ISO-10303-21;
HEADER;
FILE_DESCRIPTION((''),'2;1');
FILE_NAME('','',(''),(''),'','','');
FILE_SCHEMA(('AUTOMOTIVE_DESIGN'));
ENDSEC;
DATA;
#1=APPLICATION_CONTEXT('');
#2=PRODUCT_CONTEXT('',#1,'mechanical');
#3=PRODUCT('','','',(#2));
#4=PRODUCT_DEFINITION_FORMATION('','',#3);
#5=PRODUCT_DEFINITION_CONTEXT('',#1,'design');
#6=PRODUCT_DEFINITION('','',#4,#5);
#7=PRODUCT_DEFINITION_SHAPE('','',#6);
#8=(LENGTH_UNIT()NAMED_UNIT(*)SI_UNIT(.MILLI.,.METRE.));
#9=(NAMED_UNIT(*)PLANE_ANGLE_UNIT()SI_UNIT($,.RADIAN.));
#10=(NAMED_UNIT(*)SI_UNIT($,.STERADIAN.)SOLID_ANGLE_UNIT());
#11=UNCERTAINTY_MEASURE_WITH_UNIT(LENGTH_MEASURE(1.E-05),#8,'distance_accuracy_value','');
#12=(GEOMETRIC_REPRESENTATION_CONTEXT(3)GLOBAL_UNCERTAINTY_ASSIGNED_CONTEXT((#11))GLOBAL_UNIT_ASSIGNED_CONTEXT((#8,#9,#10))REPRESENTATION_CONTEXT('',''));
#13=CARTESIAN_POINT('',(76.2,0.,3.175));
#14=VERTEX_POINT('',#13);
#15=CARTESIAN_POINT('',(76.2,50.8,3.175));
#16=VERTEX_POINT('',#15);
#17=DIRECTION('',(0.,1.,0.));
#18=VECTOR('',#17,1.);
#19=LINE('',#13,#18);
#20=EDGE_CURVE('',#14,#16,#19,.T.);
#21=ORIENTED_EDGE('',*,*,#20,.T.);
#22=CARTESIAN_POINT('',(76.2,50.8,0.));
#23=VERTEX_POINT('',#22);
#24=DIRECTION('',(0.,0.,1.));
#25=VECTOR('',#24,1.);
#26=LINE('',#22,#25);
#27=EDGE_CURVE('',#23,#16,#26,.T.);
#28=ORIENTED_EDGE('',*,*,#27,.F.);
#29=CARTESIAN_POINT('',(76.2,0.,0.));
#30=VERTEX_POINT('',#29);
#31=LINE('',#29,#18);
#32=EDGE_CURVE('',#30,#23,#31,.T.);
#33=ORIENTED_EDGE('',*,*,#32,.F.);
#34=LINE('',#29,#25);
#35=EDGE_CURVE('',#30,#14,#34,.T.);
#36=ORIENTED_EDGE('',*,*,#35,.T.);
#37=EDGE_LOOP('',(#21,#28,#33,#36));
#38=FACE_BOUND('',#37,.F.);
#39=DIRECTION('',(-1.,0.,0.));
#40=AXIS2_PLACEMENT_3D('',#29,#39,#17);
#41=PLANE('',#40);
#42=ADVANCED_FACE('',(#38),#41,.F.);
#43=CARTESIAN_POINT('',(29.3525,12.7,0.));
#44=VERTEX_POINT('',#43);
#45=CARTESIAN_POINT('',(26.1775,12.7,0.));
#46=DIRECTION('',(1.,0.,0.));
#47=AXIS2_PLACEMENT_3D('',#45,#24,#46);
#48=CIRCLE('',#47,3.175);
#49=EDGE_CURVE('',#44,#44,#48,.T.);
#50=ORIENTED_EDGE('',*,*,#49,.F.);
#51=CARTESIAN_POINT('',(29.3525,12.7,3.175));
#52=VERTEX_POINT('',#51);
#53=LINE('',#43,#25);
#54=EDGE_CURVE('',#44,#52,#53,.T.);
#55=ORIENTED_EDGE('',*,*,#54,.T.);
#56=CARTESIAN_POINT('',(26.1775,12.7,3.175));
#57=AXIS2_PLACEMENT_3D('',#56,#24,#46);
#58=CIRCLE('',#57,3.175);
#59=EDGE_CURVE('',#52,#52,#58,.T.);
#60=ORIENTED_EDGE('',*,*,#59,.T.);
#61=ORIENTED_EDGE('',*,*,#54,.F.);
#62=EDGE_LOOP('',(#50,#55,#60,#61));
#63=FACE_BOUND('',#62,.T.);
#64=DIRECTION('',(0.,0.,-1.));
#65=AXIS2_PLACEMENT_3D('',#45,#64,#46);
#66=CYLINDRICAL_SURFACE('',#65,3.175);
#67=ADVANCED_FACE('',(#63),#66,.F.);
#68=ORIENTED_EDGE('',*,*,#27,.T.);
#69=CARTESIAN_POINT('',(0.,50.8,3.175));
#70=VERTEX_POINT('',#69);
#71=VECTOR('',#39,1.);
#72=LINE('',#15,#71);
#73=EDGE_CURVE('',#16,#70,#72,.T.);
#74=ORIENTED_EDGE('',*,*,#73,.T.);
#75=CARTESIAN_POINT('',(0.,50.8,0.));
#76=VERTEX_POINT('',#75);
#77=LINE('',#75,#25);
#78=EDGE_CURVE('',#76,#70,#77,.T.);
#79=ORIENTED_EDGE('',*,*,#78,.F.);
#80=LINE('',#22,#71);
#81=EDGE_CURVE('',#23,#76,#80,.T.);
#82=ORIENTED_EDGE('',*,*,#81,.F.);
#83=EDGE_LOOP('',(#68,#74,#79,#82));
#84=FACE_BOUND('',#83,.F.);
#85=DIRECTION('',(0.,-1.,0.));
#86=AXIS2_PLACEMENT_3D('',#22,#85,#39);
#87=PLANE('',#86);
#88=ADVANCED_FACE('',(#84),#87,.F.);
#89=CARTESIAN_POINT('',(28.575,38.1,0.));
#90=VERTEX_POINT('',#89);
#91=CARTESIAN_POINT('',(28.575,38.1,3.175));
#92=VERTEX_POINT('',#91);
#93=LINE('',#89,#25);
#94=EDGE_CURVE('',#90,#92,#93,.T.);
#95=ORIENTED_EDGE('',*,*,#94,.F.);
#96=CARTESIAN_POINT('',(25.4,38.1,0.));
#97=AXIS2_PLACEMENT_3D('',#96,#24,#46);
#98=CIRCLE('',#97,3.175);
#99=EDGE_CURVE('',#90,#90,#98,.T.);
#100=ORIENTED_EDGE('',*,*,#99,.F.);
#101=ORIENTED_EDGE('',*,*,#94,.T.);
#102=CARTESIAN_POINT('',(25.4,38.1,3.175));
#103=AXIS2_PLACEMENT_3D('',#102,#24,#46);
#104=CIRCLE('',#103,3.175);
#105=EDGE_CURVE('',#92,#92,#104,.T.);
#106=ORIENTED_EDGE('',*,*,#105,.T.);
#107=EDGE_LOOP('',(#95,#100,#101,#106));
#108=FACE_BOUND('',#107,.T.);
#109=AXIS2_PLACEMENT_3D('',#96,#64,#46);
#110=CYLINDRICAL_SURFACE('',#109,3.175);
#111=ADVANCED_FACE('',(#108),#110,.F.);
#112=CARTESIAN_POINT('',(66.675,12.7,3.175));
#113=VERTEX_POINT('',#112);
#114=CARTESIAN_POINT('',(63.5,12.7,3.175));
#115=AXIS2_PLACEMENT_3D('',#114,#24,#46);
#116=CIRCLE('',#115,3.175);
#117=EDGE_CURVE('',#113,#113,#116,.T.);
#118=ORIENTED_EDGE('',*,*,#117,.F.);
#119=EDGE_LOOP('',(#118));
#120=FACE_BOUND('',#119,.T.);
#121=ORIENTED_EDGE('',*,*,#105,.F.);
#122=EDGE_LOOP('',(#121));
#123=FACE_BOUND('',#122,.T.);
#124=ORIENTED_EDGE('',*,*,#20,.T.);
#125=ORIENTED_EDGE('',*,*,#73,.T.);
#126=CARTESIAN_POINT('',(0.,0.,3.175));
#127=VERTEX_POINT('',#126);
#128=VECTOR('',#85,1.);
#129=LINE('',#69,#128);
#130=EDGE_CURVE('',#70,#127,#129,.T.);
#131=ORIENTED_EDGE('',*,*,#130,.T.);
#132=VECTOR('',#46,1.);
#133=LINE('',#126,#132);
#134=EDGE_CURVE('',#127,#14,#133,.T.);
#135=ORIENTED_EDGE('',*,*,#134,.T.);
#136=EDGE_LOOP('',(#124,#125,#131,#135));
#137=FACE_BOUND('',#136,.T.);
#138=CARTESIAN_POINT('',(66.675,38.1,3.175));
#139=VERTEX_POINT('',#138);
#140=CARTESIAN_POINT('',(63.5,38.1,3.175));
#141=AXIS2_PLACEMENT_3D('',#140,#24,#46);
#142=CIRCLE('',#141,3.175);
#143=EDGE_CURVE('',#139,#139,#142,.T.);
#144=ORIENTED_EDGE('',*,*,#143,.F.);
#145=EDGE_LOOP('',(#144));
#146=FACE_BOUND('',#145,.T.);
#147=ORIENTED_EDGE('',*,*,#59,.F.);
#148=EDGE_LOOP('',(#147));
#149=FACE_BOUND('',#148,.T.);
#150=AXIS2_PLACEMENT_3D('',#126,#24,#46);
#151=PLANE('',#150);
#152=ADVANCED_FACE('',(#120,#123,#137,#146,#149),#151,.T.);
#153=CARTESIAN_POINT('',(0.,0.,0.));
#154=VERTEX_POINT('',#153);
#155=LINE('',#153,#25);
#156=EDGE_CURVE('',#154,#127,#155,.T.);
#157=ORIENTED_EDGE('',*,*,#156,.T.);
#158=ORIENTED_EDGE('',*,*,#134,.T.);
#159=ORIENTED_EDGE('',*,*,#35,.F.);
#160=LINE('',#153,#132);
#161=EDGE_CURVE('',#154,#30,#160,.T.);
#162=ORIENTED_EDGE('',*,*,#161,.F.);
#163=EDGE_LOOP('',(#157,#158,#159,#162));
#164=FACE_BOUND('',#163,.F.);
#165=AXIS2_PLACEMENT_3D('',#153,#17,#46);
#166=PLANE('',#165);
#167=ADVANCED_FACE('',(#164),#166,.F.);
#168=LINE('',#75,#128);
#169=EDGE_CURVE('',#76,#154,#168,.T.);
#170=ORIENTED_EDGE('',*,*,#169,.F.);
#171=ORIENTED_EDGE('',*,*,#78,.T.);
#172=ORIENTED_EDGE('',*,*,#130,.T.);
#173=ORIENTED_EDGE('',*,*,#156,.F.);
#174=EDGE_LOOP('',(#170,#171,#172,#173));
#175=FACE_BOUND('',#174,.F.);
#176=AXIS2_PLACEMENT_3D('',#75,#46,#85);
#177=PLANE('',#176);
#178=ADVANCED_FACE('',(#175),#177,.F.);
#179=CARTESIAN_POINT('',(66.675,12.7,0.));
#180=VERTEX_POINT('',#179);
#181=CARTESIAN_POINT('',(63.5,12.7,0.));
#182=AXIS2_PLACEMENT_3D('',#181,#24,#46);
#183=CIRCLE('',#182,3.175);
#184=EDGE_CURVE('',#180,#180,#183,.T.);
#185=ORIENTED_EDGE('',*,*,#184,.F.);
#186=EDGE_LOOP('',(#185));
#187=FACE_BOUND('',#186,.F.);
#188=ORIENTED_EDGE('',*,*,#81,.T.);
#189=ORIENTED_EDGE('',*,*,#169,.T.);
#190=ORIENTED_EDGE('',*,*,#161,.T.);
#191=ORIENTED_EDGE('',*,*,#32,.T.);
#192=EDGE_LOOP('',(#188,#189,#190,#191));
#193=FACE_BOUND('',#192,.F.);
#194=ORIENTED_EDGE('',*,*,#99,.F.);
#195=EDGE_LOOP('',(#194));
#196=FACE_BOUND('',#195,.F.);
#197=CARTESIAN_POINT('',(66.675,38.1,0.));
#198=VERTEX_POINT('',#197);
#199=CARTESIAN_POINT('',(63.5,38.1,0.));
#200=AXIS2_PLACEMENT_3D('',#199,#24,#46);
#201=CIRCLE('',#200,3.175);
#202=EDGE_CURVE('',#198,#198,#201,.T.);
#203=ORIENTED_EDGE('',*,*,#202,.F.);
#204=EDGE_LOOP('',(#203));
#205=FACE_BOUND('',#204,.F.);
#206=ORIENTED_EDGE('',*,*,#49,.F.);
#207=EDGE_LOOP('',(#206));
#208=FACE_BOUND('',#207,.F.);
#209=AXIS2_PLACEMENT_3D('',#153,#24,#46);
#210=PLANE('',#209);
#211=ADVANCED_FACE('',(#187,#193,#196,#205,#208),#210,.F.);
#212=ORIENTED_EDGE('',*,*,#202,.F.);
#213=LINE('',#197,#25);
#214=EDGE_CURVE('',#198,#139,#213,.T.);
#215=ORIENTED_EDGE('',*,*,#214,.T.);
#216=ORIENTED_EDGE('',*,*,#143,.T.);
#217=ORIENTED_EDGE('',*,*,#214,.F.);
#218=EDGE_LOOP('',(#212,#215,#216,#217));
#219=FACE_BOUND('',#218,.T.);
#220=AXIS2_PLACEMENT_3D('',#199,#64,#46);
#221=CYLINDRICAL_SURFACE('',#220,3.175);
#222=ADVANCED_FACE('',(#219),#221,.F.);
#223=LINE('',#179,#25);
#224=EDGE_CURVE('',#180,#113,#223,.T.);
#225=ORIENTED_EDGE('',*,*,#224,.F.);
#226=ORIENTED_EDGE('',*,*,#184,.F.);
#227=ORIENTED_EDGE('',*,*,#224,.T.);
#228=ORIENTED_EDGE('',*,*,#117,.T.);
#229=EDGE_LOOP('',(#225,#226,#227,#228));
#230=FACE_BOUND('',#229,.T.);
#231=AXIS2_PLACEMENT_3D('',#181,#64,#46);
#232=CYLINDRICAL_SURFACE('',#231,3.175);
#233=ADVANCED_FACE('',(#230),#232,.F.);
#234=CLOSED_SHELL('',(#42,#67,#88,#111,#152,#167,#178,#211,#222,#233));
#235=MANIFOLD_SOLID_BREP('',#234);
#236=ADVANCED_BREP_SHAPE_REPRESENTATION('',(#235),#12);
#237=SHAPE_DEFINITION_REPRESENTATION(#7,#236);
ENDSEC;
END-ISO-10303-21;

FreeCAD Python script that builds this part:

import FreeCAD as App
import Part
import Sketcher
from FreeCAD import Vector
Q = App.Units.Quantity

doc = App.newDocument("Part")
body = doc.addObject("PartDesign::Body", "Body")

sketch1 = doc.addObject("Sketcher::SketchObject", "Sketch")
body.addObject(sketch1)
sketch1.AttachmentSupport = (doc.XY_Plane, [""])
sketch1.MapMode = "FlatFace"
sketch1.addGeometry(Part.LineSegment(Vector(0, 50.8, 0), Vector(0, 0, 0)), False)
sketch1.addGeometry(Part.LineSegment(Vector(0, 0, 0), Vector(76.2, 0, 0)), False)
sketch1.addGeometry(Part.LineSegment(Vector(76.2, 0, 0), Vector(76.2, 50.8, 0)), False)
sketch1.addGeometry(Part.LineSegment(Vector(76.2, 50.8, 0), Vector(0, 50.8, 0)), False)
sketch1.addGeometry(Part.Circle(Vector(26.2, 12.7, 0), Vector(0, 0, 1), 3.2), False)
sketch1.addGeometry(Part.Circle(Vector(63.5, 12.7, 0), Vector(0, 0, 1), 3.2), False)
sketch1.addGeometry(Part.Circle(Vector(25.4, 38.1, 0), Vector(0, 0, 1), 3.2), False)
sketch1.addGeometry(Part.Circle(Vector(63.5, 38.1, 0), Vector(0, 0, 1), 3.2), False)
sketch1.addConstraint(Sketcher.Constraint("Coincident", 0, 2, 1, 1))
sketch1.addConstraint(Sketcher.Constraint("Coincident", 1, 2, 2, 1))
sketch1.addConstraint(Sketcher.Constraint("Coincident", 2, 2, 3, 1))
sketch1.addConstraint(Sketcher.Constraint("Coincident", 3, 2, 0, 1))
sketch1.addConstraint(Sketcher.Constraint("Vertical", 0))
sketch1.addConstraint(Sketcher.Constraint("Horizontal", 1))
sketch1.addConstraint(Sketcher.Constraint("Vertical", 2))
sketch1.addConstraint(Sketcher.Constraint("Horizontal", 3))
sketch1.addConstraint(Sketcher.Constraint("Coincident", 0, 2, -1, 1))
sketch1.addConstraint(Sketcher.Constraint("Equal", 4, 5))
sketch1.addConstraint(Sketcher.Constraint("Equal", 5, 6))
sketch1.addConstraint(Sketcher.Constraint("Equal", 6, 7))
sketch1.addConstraint(Sketcher.Constraint("Horizontal", 4, 3, 5, 3))
sketch1.addConstraint(Sketcher.Constraint("Horizontal", 6, 3, 7, 3))
sketch1.addConstraint(Sketcher.Constraint("Vertical", 5, 3, 7, 3))
sketch1.addConstraint(Sketcher.Constraint("Diameter", 4, Q("0.25 in")))
sketch1.addConstraint(Sketcher.Constraint("DistanceX", 1, 1, 1, 2, Q("3 in")))
sketch1.addConstraint(Sketcher.Constraint("DistanceY", 0, 2, 0, 1, Q("2 in")))
sketch1.addConstraint(Sketcher.Constraint("DistanceX", -1, 1, 6, 3, Q("1 in")))
sketch1.addConstraint(Sketcher.Constraint("DistanceY", 4, 3, 6, 3, Q("1 in")))
sketch1.addConstraint(Sketcher.Constraint("DistanceY", -1, 1, 4, 3, Q("0.5 in")))
sketch1.addConstraint(Sketcher.Constraint("DistanceX", 5, 3, 1, 2, Q("0.5 in")))
sketch1.addConstraint(Sketcher.Constraint("DistanceX", -1, 1, 4, 3, Q("1.0306 in")))
pad1 = doc.addObject("PartDesign::Pad", "Pad")
body.addObject(pad1)
pad1.Profile = sketch1
pad1.Length = Q("0.125 in")

doc.recompute()
